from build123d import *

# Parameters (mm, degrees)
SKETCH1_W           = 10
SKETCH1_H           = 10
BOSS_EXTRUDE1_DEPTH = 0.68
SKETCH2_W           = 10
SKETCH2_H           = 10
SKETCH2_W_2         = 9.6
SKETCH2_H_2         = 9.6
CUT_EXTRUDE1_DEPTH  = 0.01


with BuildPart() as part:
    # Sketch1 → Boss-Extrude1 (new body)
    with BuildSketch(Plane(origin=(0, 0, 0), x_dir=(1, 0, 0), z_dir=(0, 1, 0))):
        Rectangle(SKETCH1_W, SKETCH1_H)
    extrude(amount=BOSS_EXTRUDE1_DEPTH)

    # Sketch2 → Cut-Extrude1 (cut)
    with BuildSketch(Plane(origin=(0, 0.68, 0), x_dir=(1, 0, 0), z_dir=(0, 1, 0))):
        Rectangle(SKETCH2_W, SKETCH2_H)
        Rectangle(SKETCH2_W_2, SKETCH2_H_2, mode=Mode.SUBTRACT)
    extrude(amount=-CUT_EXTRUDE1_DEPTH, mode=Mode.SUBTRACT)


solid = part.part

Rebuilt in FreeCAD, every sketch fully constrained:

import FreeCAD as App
import Part
import Sketcher
Q = App.Units.Quantity

doc = App.newDocument("Part")
body = doc.addObject("PartDesign::Body", "Body")

# Sketch on XZ plane
sketch1 = body.newObject("Sketcher::SketchObject", "Sketch")
sketch1.AttachmentSupport = (doc.getObject("XZ_Plane"), [""])
sketch1.MapMode = "FlatFace"
sketch1.addGeometry([
    Part.LineSegment(App.Vector(-5, -5, 0), App.Vector(-5, 5, 0)),
    Part.LineSegment(App.Vector(-5, 5, 0), App.Vector(5, 5, 0)),
    Part.LineSegment(App.Vector(5, 5, 0), App.Vector(5, -5, 0)),
    Part.LineSegment(App.Vector(5, -5, 0), App.Vector(-5, -5, 0)),
], False)
sketch1.addConstraint([
    Sketcher.Constraint("Coincident", 0, 2, 1, 1),
    Sketcher.Constraint("Coincident", 1, 2, 2, 1),
    Sketcher.Constraint("Coincident", 2, 2, 3, 1),
    Sketcher.Constraint("Coincident", 3, 2, 0, 1),
    Sketcher.Constraint("Vertical", 0),
    Sketcher.Constraint("Horizontal", 1),
    Sketcher.Constraint("Vertical", 2),
    Sketcher.Constraint("Horizontal", 3),
    Sketcher.Constraint("Symmetric", 0, 2, 2, 2, -1, 1),
    Sketcher.Constraint("Equal", 3, 0),
    Sketcher.Constraint("DistanceX", 1, 1, 1, 2, Q("10 mm")),
])
pad1 = body.newObject("PartDesign::Pad", "Pad")
pad1.Profile = sketch1
pad1.Length = 0.68
pad1.Reversed = True

# Sketch on XZ plane
sketch2 = body.newObject("Sketcher::SketchObject", "Sketch001")
sketch2.AttachmentSupport = (doc.getObject("XZ_Plane"), [""])
sketch2.MapMode = "FlatFace"
sketch2.AttachmentOffset = App.Placement(App.Vector(0, 0, -0.68), App.Rotation())
sketch2.addGeometry([
    Part.LineSegment(App.Vector(-5, -5, 0), App.Vector(-5, 5, 0)),  # 0
    Part.LineSegment(App.Vector(-5, 5, 0), App.Vector(5, 5, 0)),  # 1
    Part.LineSegment(App.Vector(5, 5, 0), App.Vector(5, -5, 0)),  # 2
    Part.LineSegment(App.Vector(5, -5, 0), App.Vector(-5, -5, 0)),  # 3
    Part.LineSegment(App.Vector(5, 5, 0), App.Vector(-5, 5, 0)),  # 4
    Part.LineSegment(App.Vector(-5, 5, 0), App.Vector(-5, -5, 0)),  # 5
    Part.LineSegment(App.Vector(-5, -5, 0), App.Vector(5, -5, 0)),  # 6
    Part.LineSegment(App.Vector(5, -5, 0), App.Vector(5, 5, 0)),  # 7
], False)
sketch2.addConstraint([
    Sketcher.Constraint("Coincident", 0, 2, 1, 1),
    Sketcher.Constraint("Coincident", 1, 2, 2, 1),
    Sketcher.Constraint("Coincident", 2, 2, 3, 1),
    Sketcher.Constraint("Coincident", 3, 2, 0, 1),
    Sketcher.Constraint("Coincident", 4, 2, 5, 1),
    Sketcher.Constraint("Coincident", 5, 2, 6, 1),
    Sketcher.Constraint("Coincident", 6, 2, 7, 1),
    Sketcher.Constraint("Coincident", 7, 2, 4, 1),
    Sketcher.Constraint("Vertical", 0),
    Sketcher.Constraint("Horizontal", 1),
    Sketcher.Constraint("Vertical", 2),
    Sketcher.Constraint("Horizontal", 3),
    Sketcher.Constraint("Horizontal", 4),
    Sketcher.Constraint("Vertical", 5),
    Sketcher.Constraint("Horizontal", 6),
    Sketcher.Constraint("Vertical", 7),
    Sketcher.Constraint("Symmetric", 0, 2, 2, 2, -1, 1),
    Sketcher.Constraint("Symmetric", 4, 2, 6, 2, -1, 1),
    Sketcher.Constraint("Equal", 3, 0),
    Sketcher.Constraint("Equal", 6, 5),
    Sketcher.Constraint("DistanceX", 1, 1, 1, 2, Q("10 mm")),
    Sketcher.Constraint("DistanceX", 4, 2, 4, 1, Q("9.6 mm")),
])
pocket1 = body.newObject("PartDesign::Pocket", "Pocket")
pocket1.Profile = sketch2
pocket1.Length = 0.01
pocket1.Reversed = True

doc.recompute()
